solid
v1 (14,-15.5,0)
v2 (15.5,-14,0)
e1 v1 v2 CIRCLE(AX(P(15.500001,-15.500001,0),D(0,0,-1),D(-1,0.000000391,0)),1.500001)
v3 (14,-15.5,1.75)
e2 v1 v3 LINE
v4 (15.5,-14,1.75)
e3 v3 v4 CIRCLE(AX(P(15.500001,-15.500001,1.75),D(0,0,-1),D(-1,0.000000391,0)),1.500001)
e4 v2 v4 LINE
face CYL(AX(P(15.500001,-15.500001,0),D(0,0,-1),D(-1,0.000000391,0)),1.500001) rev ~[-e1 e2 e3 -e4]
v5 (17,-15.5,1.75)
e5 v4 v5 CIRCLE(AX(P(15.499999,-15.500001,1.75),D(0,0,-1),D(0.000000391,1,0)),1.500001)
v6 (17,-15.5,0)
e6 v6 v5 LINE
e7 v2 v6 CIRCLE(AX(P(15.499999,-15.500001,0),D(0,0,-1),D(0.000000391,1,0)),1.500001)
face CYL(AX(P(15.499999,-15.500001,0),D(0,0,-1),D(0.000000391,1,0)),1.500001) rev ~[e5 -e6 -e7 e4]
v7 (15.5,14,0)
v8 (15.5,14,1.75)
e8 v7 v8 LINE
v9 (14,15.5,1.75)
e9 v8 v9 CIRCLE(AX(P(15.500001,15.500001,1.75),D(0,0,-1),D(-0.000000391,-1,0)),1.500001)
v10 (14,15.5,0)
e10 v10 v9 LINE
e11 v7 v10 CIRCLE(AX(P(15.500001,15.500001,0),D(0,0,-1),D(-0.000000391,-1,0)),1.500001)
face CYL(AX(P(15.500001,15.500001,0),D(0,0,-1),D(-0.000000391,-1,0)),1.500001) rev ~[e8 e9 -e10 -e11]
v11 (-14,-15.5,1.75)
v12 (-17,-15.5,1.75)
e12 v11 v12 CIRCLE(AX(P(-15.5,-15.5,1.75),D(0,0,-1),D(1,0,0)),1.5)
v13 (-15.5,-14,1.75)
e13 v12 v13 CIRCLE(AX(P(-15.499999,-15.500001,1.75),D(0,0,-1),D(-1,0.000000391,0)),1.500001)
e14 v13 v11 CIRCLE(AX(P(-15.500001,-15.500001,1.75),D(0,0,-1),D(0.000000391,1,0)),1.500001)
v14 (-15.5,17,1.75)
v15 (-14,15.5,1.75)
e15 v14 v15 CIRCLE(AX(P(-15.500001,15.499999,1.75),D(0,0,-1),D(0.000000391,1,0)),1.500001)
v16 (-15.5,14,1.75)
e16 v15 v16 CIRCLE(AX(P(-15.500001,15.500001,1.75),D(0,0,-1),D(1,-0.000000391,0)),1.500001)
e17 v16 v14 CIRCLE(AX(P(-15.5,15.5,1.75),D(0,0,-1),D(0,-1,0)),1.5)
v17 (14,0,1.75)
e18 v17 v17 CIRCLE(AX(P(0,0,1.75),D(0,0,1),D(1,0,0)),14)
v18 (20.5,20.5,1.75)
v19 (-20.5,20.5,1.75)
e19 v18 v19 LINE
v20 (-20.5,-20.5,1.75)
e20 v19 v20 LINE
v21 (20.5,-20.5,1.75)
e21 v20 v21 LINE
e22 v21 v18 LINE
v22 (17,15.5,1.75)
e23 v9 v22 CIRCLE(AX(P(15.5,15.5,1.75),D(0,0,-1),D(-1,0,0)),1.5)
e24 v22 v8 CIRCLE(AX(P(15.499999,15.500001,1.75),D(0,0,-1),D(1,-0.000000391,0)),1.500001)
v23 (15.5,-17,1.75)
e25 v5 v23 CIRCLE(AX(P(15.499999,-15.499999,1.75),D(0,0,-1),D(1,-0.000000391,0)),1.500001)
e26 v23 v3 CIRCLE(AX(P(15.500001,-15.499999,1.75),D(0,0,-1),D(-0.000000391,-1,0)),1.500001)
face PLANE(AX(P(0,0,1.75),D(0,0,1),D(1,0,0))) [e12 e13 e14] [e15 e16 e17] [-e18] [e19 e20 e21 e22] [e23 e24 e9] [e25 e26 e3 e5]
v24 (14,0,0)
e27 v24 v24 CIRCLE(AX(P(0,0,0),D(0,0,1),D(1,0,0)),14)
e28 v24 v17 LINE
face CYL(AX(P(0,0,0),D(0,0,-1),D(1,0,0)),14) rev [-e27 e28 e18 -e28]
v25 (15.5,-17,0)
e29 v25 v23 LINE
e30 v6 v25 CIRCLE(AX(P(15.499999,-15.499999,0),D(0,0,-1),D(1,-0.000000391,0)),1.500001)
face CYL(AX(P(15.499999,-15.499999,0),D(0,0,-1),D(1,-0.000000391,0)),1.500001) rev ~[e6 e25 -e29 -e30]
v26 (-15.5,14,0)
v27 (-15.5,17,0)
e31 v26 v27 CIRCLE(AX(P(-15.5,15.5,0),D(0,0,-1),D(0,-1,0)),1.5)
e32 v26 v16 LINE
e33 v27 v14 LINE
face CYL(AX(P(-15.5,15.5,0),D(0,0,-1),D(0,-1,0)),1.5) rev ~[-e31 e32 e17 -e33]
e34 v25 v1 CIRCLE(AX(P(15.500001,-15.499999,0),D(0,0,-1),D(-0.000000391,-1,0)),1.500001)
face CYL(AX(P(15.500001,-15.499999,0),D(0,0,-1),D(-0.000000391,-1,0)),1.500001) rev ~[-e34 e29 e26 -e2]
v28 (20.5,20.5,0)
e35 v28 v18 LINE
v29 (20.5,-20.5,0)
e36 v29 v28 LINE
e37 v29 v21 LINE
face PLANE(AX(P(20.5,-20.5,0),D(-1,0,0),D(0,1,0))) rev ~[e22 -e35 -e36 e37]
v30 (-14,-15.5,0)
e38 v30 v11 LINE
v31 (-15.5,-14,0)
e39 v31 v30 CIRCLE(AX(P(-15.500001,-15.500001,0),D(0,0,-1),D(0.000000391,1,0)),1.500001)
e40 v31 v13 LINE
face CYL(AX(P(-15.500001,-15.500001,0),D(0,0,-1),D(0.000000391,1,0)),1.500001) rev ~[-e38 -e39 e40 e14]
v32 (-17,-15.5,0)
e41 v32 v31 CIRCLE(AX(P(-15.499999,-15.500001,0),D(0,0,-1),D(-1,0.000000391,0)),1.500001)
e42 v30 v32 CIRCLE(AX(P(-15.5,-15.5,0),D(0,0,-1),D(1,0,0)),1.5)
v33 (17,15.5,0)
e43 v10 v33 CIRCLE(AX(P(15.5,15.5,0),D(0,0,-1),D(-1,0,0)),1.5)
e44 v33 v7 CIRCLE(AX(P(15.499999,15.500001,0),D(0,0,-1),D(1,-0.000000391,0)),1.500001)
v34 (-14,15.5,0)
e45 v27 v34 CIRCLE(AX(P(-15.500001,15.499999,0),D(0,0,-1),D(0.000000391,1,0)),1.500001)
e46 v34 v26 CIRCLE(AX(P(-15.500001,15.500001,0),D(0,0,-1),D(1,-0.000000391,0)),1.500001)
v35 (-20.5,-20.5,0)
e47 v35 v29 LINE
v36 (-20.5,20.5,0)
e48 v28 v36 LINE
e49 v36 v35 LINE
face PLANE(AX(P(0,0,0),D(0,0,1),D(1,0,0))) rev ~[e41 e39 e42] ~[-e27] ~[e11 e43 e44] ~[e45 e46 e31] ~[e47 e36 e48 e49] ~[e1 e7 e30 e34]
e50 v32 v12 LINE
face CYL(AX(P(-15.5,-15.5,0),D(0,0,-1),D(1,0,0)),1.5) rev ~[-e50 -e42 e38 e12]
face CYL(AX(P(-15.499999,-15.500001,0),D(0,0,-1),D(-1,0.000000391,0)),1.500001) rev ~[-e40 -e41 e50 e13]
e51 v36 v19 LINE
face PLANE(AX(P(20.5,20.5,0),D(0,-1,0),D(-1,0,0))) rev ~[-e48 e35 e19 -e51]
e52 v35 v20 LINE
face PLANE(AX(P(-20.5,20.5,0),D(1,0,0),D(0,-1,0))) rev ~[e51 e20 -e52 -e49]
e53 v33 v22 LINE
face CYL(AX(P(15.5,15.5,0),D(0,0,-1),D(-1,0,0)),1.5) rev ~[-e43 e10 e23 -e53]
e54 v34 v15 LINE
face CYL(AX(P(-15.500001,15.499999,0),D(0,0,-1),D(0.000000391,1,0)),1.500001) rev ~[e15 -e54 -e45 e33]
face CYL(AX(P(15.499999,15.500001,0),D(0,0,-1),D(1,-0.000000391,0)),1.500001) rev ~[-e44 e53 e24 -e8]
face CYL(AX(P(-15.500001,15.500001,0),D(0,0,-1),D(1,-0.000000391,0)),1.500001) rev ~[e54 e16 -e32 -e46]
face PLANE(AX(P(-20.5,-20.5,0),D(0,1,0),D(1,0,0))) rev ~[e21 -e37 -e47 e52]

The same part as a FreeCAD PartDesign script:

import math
import FreeCAD as App
import Part
import Sketcher

V = App.Vector

doc = App.newDocument("Part")
body = doc.addObject("PartDesign::Body", "Body")

sketch1 = doc.addObject("Sketcher::SketchObject", "Sketch")
body.addObject(sketch1)
sketch1.AttachmentSupport = (doc.XY_Plane, [""])
sketch1.MapMode = "FlatFace"
sketch1.addGeometry(Part.LineSegment(V(20.5, -20.5, 0), V(20.5, 20.5, 0)), False)
sketch1.addGeometry(Part.LineSegment(V(20.5, 20.5, 0), V(-20.5, 20.5, 0)), False)
sketch1.addGeometry(Part.LineSegment(V(-20.5, 20.5, 0), V(-20.5, -20.5, 0)), False)
sketch1.addGeometry(Part.LineSegment(V(-20.5, -20.5, 0), V(20.5, -20.5, 0)), False)
sketch1.addGeometry(Part.ArcOfCircle(Part.Circle(V(15.5, -15.5, 0), V(0, 0, 1), 1.5), math.radians(90), math.radians(180)), False)
sketch1.addGeometry(Part.ArcOfCircle(Part.Circle(V(15.5, -15.5, 0), V(0, 0, 1), 1.5), math.radians(0), math.radians(90)), False)
sketch1.addGeometry(Part.ArcOfCircle(Part.Circle(V(15.5, -15.5, 0), V(0, 0, 1), 1.5), math.radians(-90), math.radians(0)), False)
sketch1.addGeometry(Part.ArcOfCircle(Part.Circle(V(15.5, -15.5, 0), V(0, 0, 1), 1.5), math.radians(-180), math.radians(-90)), False)
sketch1.addGeometry(Part.ArcOfCircle(Part.Circle(V(-15.5, -15.5, 0), V(0, 0, 1), 1.5), math.radians(90), math.radians(180)), False)
sketch1.addGeometry(Part.ArcOfCircle(Part.Circle(V(-15.5, -15.5, 0), V(0, 0, 1), 1.5), math.radians(0), math.radians(90)), False)
sketch1.addGeometry(Part.ArcOfCircle(Part.Circle(V(-15.5, -15.5, 0), V(0, 0, 1), 1.5), math.radians(180), math.radians(360)), False)
sketch1.addGeometry(Part.ArcOfCircle(Part.Circle(V(15.5, 15.5, 0), V(0, 0, 1), 1.5), math.radians(-180), math.radians(-90)), False)
sketch1.addGeometry(Part.ArcOfCircle(Part.Circle(V(15.5, 15.5, 0), V(0, 0, 1), 1.5), math.radians(0), math.radians(180)), False)
sketch1.addGeometry(Part.ArcOfCircle(Part.Circle(V(15.5, 15.5, 0), V(0, 0, 1), 1.5), math.radians(-90), math.radians(0)), False)
sketch1.addGeometry(Part.ArcOfCircle(Part.Circle(V(-15.5, 15.5, 0), V(0, 0, 1), 1.5), math.radians(-90), math.radians(0)), False)
sketch1.addGeometry(Part.ArcOfCircle(Part.Circle(V(-15.5, 15.5, 0), V(0, 0, 1), 1.5), math.radians(90), math.radians(270)), False)
sketch1.addGeometry(Part.ArcOfCircle(Part.Circle(V(-15.5, 15.5, 0), V(0, 0, 1), 1.5), math.radians(0), math.radians(90)), False)
sketch1.addGeometry(Part.Circle(V(0, 0, 0), V(0, 0, 1), 14), False)
sketch1.addConstraint(Sketcher.Constraint("Coincident", 0, 2, 1, 1))
sketch1.addConstraint(Sketcher.Constraint("Coincident", 1, 2, 2, 1))
sketch1.addConstraint(Sketcher.Constraint("Coincident", 2, 2, 3, 1))
sketch1.addConstraint(Sketcher.Constraint("Coincident", 3, 2, 0, 1))
sketch1.addConstraint(Sketcher.Constraint("Tangent", 4, 1, 5, 2))
sketch1.addConstraint(Sketcher.Constraint("Tangent", 5, 1, 6, 2))
sketch1.addConstraint(Sketcher.Constraint("Tangent", 6, 1, 7, 2))
sketch1.addConstraint(Sketcher.Constraint("Tangent", 7, 1, 4, 2))
sketch1.addConstraint(Sketcher.Constraint("Tangent", 8, 1, 9, 2))
sketch1.addConstraint(Sketcher.Constraint("Tangent", 9, 1, 10, 2))
sketch1.addConstraint(Sketcher.Constraint("Tangent", 10, 1, 8, 2))
sketch1.addConstraint(Sketcher.Constraint("Tangent", 11, 1, 12, 2))
sketch1.addConstraint(Sketcher.Constraint("Tangent", 12, 1, 13, 2))
sketch1.addConstraint(Sketcher.Constraint("Tangent", 13, 1, 11, 2))
sketch1.addConstraint(Sketcher.Constraint("Tangent", 14, 1, 15, 2))
sketch1.addConstraint(Sketcher.Constraint("Tangent", 15, 1, 16, 2))
sketch1.addConstraint(Sketcher.Constraint("Tangent", 16, 1, 14, 2))
sketch1.addConstraint(Sketcher.Constraint("Vertical", 0))
sketch1.addConstraint(Sketcher.Constraint("Horizontal", 1))
sketch1.addConstraint(Sketcher.Constraint("Vertical", 2))
sketch1.addConstraint(Sketcher.Constraint("Horizontal", 3))
sketch1.addConstraint(Sketcher.Constraint("Coincident", 17, 3, -1, 1))
sketch1.addConstraint(Sketcher.Constraint("Equal", 4, 5))
sketch1.addConstraint(Sketcher.Constraint("Equal", 7, 8))
sketch1.addConstraint(Sketcher.Constraint("Equal", 10, 11))
sketch1.addConstraint(Sketcher.Constraint("Equal", 13, 14))
sketch1.addConstraint(Sketcher.Constraint("Symmetric", 8, 3, 11, 3, -1, 1))
sketch1.addConstraint(Sketcher.Constraint("Symmetric", 4, 3, 14, 3, -1, 1))
sketch1.addConstraint(Sketcher.Constraint("Symmetric", 0, 2, 2, 2, -1, 1))
sketch1.addConstraint(Sketcher.Constraint("Symmetric", 4, 3, 8, 3, -2))
sketch1.addConstraint(Sketcher.Constraint("Horizontal", 10, 3, 5, 1))
sketch1.addConstraint(Sketcher.Constraint("Horizontal", 5, 1, 7, 1))
sketch1.addConstraint(Sketcher.Constraint("Horizontal", 7, 1, 9, 1))
sketch1.addConstraint(Sketcher.Constraint("Horizontal", 9, 1, 10, 1))
sketch1.addConstraint(Sketcher.Constraint("Horizontal", 16, 3, 11, 1))
sketch1.addConstraint(Sketcher.Constraint("Horizontal", 11, 1, 12, 1))
sketch1.addConstraint(Sketcher.Constraint("Horizontal", 12, 1, 16, 1))
sketch1.addConstraint(Sketcher.Constraint("Vertical", 13, 3, 4, 1))
sketch1.addConstraint(Sketcher.Constraint("Vertical", 4, 1, 6, 1))
sketch1.addConstraint(Sketcher.Constraint("Vertical", 16, 3, 8, 1))
sketch1.addConstraint(Sketcher.Constraint("Vertical", 6, 1, 13, 1))
sketch1.addConstraint(Sketcher.Constraint("Vertical", 8, 1, 14, 1))
sketch1.addConstraint(Sketcher.Constraint("Vertical", 14, 1, 15, 1))
sketch1.addConstraint(Sketcher.Constraint("Equal", 3, 0))
sketch1.addConstraint(Sketcher.Constraint("Diameter", 17, 28.0))
sketch1.addConstraint(Sketcher.Constraint("Radius", 4, 1.500001))
sketch1.addConstraint(Sketcher.Constraint("DistanceX", 1, 2, 1, 1, 41.0))
sketch1.addConstraint(Sketcher.Constraint("DistanceY", 4, 1, -1, 1, 14.0))
sketch1.addConstraint(Sketcher.Constraint("DistanceX", -1, 1, 5, 1, 17.0))
pad1 = doc.addObject("PartDesign::Pad", "Pad")
body.addObject(pad1)
pad1.Profile = sketch1
pad1.Length = 1.75

doc.recompute()
